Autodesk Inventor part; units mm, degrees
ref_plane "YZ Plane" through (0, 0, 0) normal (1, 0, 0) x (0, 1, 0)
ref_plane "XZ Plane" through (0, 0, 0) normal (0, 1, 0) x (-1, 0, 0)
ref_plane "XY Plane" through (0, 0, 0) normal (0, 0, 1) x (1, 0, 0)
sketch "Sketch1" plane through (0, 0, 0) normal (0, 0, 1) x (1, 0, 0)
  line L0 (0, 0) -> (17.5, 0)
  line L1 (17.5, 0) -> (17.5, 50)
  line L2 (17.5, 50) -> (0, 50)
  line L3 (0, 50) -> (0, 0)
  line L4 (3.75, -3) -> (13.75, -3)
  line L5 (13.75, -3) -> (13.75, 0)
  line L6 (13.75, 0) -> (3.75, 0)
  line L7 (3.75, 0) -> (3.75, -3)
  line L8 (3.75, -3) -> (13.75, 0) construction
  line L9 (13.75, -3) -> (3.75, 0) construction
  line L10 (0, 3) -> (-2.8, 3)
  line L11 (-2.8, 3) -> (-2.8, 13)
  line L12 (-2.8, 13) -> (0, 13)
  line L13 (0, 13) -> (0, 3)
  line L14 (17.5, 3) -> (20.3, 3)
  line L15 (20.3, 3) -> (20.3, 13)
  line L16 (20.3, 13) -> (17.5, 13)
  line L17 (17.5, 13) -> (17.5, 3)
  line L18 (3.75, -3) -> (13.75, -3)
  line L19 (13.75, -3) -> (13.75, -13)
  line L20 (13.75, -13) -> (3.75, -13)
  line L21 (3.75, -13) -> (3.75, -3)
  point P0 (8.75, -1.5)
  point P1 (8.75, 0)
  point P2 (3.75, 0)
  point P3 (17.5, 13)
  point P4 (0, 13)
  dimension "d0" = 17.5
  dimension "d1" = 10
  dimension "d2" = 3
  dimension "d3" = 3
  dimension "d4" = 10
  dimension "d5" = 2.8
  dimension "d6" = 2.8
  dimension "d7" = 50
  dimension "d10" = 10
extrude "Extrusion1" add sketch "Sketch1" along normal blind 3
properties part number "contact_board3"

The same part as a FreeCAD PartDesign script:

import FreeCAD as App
import Part
import Sketcher
from FreeCAD import Vector

doc = App.newDocument("Part")
body = doc.addObject("PartDesign::Body", "Body")

sketch1 = body.newObject("Sketcher::SketchObject", "Sketch")
sketch1.AttachmentSupport = (doc.getObject("XY_Plane"), [""])
sketch1.MapMode = "FlatFace"
sketch1.addGeometry(Part.LineSegment(Vector(0, 3, 0), Vector(0, 0, 0)), False)
sketch1.addGeometry(Part.LineSegment(Vector(0, 0, 0), Vector(3.75, 0, 0)), False)
sketch1.addGeometry(Part.LineSegment(Vector(3.75, 0, 0), Vector(3.75, -13, 0)), False)
sketch1.addGeometry(Part.LineSegment(Vector(3.75, -13, 0), Vector(13.75, -13, 0)), False)
sketch1.addGeometry(Part.LineSegment(Vector(13.75, -13, 0), Vector(13.75, 0, 0)), False)
sketch1.addGeometry(Part.LineSegment(Vector(13.75, 0, 0), Vector(17.5, 0, 0)), False)
sketch1.addGeometry(Part.LineSegment(Vector(17.5, 0, 0), Vector(17.5, 3, 0)), False)
sketch1.addGeometry(Part.LineSegment(Vector(17.5, 3, 0), Vector(20.3, 3, 0)), False)
sketch1.addGeometry(Part.LineSegment(Vector(20.3, 3, 0), Vector(20.3, 13, 0)), False)
sketch1.addGeometry(Part.LineSegment(Vector(20.3, 13, 0), Vector(17.5, 13, 0)), False)
sketch1.addGeometry(Part.LineSegment(Vector(17.5, 13, 0), Vector(17.5, 50, 0)), False)
sketch1.addGeometry(Part.LineSegment(Vector(17.5, 50, 0), Vector(0, 50, 0)), False)
sketch1.addGeometry(Part.LineSegment(Vector(0, 50, 0), Vector(0, 13, 0)), False)
sketch1.addGeometry(Part.LineSegment(Vector(0, 13, 0), Vector(-2.8, 13, 0)), False)
sketch1.addGeometry(Part.LineSegment(Vector(-2.8, 13, 0), Vector(-2.8, 3, 0)), False)
sketch1.addGeometry(Part.LineSegment(Vector(-2.8, 3, 0), Vector(0, 3, 0)), False)
sketch1.addConstraint(Sketcher.Constraint("Coincident", 0, 2, 1, 1))
sketch1.addConstraint(Sketcher.Constraint("Coincident", 1, 2, 2, 1))
sketch1.addConstraint(Sketcher.Constraint("Coincident", 2, 2, 3, 1))
sketch1.addConstraint(Sketcher.Constraint("Coincident", 3, 2, 4, 1))
sketch1.addConstraint(Sketcher.Constraint("Coincident", 4, 2, 5, 1))
sketch1.addConstraint(Sketcher.Constraint("Coincident", 5, 2, 6, 1))
sketch1.addConstraint(Sketcher.Constraint("Coincident", 6, 2, 7, 1))
sketch1.addConstraint(Sketcher.Constraint("Coincident", 7, 2, 8, 1))
sketch1.addConstraint(Sketcher.Constraint("Coincident", 8, 2, 9, 1))
sketch1.addConstraint(Sketcher.Constraint("Coincident", 9, 2, 10, 1))
sketch1.addConstraint(Sketcher.Constraint("Coincident", 10, 2, 11, 1))
sketch1.addConstraint(Sketcher.Constraint("Coincident", 11, 2, 12, 1))
sketch1.addConstraint(Sketcher.Constraint("Coincident", 12, 2, 13, 1))
sketch1.addConstraint(Sketcher.Constraint("Coincident", 13, 2, 14, 1))
sketch1.addConstraint(Sketcher.Constraint("Coincident", 14, 2, 15, 1))
sketch1.addConstraint(Sketcher.Constraint("Coincident", 15, 2, 0, 1))
sketch1.addConstraint(Sketcher.Constraint("Vertical", 0))
sketch1.addConstraint(Sketcher.Constraint("Horizontal", 1))
sketch1.addConstraint(Sketcher.Constraint("Vertical", 2))
sketch1.addConstraint(Sketcher.Constraint("Horizontal", 3))
sketch1.addConstraint(Sketcher.Constraint("Vertical", 4))
sketch1.addConstraint(Sketcher.Constraint("Horizontal", 5))
sketch1.addConstraint(Sketcher.Constraint("Vertical", 6))
sketch1.addConstraint(Sketcher.Constraint("Horizontal", 7))
sketch1.addConstraint(Sketcher.Constraint("Vertical", 8))
sketch1.addConstraint(Sketcher.Constraint("Horizontal", 9))
sketch1.addConstraint(Sketcher.Constraint("Vertical", 10))
sketch1.addConstraint(Sketcher.Constraint("Horizontal", 11))
sketch1.addConstraint(Sketcher.Constraint("Vertical", 12))
sketch1.addConstraint(Sketcher.Constraint("Horizontal", 13))
sketch1.addConstraint(Sketcher.Constraint("Vertical", 14))
sketch1.addConstraint(Sketcher.Constraint("Horizontal", 15))
sketch1.addConstraint(Sketcher.Constraint("Coincident", 0, 2, -1, 1))
sketch1.addConstraint(Sketcher.Constraint("PointOnObject", 4, 2, -1))
sketch1.addConstraint(Sketcher.Constraint("PointOnObject", 11, 2, -2))
sketch1.addConstraint(Sketcher.Constraint("Horizontal", 9, 2, 12, 2))
sketch1.addConstraint(Sketcher.Constraint("Horizontal", 7, 2, 14, 2))
sketch1.addConstraint(Sketcher.Constraint("Vertical", 6, 2, 9, 2))
sketch1.addConstraint(Sketcher.Constraint("Equal", 1, 5))
sketch1.addConstraint(Sketcher.Constraint("Equal", 9, 13))
sketch1.addConstraint(Sketcher.Constraint("Equal", 3, 8))
sketch1.addConstraint(Sketcher.Constraint("DistanceX", 3, 1, 3, 2, 10.0))
sketch1.addConstraint(Sketcher.Constraint("DistanceY", 0, 2, 0, 1, 3.0))
sketch1.addConstraint(Sketcher.Constraint("DistanceX", 7, 1, 7, 2, 2.8))
sketch1.addConstraint(Sketcher.Constraint("DistanceX", 11, 2, 11, 1, 17.5))
sketch1.addConstraint(Sketcher.Constraint("DistanceY", -1, 1, 10, 2, 50.0))
sketch1.addConstraint(Sketcher.Constraint("DistanceY", 2, 2, 2, 1, 13.0))
pad1 = body.newObject("PartDesign::Pad", "Pad")
pad1.Profile = sketch1
pad1.Length = 3

doc.recompute()
